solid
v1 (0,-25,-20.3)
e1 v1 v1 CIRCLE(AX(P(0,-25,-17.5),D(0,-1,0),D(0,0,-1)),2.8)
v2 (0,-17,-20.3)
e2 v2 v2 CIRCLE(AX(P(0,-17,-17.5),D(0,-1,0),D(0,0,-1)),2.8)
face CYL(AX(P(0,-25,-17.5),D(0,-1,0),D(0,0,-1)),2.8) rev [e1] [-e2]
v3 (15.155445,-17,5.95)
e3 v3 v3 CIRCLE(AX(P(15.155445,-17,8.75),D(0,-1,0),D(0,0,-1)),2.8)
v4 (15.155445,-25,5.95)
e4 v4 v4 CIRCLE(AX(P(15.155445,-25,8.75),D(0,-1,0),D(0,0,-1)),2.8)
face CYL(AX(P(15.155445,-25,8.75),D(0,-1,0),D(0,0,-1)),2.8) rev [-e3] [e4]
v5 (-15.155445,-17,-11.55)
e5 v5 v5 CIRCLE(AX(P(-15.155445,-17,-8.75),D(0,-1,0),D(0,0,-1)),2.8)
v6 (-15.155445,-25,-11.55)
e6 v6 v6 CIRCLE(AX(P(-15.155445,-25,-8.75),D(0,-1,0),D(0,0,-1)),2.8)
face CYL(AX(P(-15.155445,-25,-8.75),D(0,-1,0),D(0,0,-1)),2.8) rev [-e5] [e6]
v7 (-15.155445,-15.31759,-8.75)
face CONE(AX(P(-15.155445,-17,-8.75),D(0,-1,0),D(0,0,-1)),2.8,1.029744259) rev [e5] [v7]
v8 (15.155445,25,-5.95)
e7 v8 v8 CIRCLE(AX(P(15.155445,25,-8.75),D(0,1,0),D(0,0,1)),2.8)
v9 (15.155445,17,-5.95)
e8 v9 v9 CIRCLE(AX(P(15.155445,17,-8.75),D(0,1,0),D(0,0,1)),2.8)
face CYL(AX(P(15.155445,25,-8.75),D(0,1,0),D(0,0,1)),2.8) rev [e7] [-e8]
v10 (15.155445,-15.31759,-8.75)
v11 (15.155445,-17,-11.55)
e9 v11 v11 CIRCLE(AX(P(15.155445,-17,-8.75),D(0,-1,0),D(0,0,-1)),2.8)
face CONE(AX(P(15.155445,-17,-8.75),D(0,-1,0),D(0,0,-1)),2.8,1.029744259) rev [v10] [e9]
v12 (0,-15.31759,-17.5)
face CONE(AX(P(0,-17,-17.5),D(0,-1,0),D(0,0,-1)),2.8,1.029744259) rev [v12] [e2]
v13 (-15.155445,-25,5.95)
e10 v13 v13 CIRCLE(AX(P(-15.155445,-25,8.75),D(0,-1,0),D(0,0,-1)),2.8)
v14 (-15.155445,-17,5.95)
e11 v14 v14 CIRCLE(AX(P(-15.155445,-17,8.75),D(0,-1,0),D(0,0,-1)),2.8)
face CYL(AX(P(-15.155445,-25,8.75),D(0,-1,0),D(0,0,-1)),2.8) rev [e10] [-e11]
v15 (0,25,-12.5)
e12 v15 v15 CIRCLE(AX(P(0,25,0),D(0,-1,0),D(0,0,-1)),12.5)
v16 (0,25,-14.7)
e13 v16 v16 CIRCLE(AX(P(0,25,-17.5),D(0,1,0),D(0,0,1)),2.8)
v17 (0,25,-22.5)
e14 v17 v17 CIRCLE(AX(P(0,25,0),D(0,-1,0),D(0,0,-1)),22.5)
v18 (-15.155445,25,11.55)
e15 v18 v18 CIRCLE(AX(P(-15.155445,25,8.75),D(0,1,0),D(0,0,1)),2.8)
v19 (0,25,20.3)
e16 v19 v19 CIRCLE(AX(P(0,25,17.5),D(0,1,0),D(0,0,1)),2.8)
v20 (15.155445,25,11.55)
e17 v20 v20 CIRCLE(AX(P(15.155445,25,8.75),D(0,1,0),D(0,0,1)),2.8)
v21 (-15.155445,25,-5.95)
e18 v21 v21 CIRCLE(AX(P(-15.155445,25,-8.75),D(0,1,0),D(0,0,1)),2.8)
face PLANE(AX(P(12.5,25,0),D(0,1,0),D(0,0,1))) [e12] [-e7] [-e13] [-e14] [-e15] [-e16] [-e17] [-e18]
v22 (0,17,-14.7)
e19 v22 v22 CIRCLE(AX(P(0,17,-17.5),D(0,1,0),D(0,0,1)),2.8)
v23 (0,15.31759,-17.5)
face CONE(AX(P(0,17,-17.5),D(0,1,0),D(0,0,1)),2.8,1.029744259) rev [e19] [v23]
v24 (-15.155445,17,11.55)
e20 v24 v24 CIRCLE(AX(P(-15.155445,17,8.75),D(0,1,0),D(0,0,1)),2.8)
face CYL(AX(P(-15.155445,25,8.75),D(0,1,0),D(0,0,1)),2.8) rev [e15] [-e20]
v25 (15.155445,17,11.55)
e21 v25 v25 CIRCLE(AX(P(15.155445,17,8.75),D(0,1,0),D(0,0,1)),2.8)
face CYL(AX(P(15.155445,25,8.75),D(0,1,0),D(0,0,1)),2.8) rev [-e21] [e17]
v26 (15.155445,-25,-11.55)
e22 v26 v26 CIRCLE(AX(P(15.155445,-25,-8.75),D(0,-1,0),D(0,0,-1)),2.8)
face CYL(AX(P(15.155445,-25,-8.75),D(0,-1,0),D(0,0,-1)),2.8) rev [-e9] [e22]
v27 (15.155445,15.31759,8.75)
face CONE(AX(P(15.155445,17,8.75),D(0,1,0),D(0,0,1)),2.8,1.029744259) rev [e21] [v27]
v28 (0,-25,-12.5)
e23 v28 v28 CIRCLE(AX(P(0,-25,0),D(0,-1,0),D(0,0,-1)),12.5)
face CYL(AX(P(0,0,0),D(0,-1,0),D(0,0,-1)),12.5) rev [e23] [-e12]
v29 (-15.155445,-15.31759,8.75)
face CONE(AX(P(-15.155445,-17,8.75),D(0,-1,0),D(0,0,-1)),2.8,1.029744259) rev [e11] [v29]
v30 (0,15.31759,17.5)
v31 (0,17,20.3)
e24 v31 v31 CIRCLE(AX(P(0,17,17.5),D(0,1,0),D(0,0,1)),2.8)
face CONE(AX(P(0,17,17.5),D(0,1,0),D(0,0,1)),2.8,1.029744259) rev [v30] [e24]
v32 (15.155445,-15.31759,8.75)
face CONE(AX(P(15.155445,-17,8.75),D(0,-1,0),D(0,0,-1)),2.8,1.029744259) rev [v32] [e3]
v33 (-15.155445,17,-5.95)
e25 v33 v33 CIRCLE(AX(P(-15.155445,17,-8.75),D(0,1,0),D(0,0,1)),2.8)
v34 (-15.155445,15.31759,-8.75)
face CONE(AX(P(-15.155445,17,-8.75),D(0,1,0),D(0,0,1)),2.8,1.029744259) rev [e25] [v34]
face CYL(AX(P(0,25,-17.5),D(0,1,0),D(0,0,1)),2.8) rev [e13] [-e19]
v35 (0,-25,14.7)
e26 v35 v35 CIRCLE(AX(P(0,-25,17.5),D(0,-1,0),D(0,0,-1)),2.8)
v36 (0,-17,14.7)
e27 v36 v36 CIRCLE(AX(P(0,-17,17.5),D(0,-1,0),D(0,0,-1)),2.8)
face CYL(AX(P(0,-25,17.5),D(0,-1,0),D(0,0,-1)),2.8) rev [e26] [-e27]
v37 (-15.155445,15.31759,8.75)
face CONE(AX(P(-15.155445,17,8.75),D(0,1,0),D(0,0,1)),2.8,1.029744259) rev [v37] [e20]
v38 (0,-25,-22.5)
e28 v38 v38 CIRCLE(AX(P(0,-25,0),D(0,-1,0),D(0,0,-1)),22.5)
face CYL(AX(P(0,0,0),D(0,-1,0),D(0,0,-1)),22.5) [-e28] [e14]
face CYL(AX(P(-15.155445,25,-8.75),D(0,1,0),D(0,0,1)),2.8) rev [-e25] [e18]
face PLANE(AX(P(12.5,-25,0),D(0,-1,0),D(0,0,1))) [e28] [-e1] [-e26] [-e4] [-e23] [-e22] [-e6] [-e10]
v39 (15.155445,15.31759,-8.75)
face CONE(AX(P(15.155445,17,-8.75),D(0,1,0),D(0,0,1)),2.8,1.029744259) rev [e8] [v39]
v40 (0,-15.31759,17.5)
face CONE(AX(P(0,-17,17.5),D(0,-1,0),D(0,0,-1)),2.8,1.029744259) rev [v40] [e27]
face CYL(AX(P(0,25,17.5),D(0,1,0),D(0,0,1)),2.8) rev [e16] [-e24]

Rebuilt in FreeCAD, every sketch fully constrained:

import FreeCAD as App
import Part
import Sketcher
Q = App.Units.Quantity


def add_polygon(sketch, points):
    """Adds a closed chain of lines whose ends are joined by coincident constraints."""
    first, n = sketch.GeometryCount, len(points)
    for a, b in zip(points, points[1:] + points[:1]):
        sketch.addGeometry(Part.LineSegment(App.Vector(*a, 0), App.Vector(*b, 0)), False)
    for i in range(n):
        sketch.addConstraint(Sketcher.Constraint("Coincident", first + i, 2, first + (i + 1) % n, 1))

doc = App.newDocument("Part")
body = doc.addObject("PartDesign::Body", "Body")

# Sketch on XY plane
sketch1 = doc.addObject("Sketcher::SketchObject", "Sketch")
body.addObject(sketch1)
sketch1.AttachmentSupport = (doc.XY_Plane, [""])
sketch1.MapMode = "FlatFace"
add_polygon(sketch1, [(12, 25), (12, 0), (22, 0), (22, 25)])  # lines 0-3
sketch1.addConstraint(Sketcher.Constraint("Vertical", 0))
sketch1.addConstraint(Sketcher.Constraint("Horizontal", 1))
sketch1.addConstraint(Sketcher.Constraint("Vertical", 2))
sketch1.addConstraint(Sketcher.Constraint("Horizontal", 3))
sketch1.addConstraint(Sketcher.Constraint("PointOnObject", 0, 2, -1))
sketch1.addConstraint(Sketcher.Constraint("DistanceX", 1, 1, 1, 2, Q("10 mm")))
sketch1.addConstraint(Sketcher.Constraint("DistanceY", 0, 2, 0, 1, Q("25 mm")))
sketch1.addConstraint(Sketcher.Constraint("DistanceX", -1, 1, 0, 2, Q("12.5 mm")))
revolution = doc.addObject("PartDesign::Revolution", "Revolution")
body.addObject(revolution)
revolution.Profile = sketch1
revolution.ReferenceAxis = (sketch1, ["V_Axis"])
revolution.Angle = 360

# Sketch on YZ plane
sketch2 = doc.addObject("Sketcher::SketchObject", "Sketch001")
body.addObject(sketch2)
sketch2.AttachmentSupport = (doc.YZ_Plane, [""])
sketch2.MapMode = "FlatFace"
sketch2.AttachmentOffset = App.Placement(App.Vector(0, 0, 15.155445), App.Rotation())
add_polygon(sketch2, [(15.3, 8.8), (25, 8.8), (25, 11.6), (17, 11.6)])  # lines 0-3
sketch2.addGeometry(Part.LineSegment(App.Vector(25, 8.8, 0), App.Vector(15.3, 8.8, 0)), True)  # axis
sketch2.addConstraint(Sketcher.Constraint("Horizontal", 0))
sketch2.addConstraint(Sketcher.Constraint("Vertical", 1))
sketch2.addConstraint(Sketcher.Constraint("Horizontal", 2))
sketch2.addConstraint(Sketcher.Constraint("Horizontal", 4))
sketch2.addConstraint(Sketcher.Constraint("Coincident", 4, 1, 0, 2))
sketch2.addConstraint(Sketcher.Constraint("Equal", 0, 4))
sketch2.addConstraint(Sketcher.Constraint("DistanceX", 2, 2, 2, 1, Q("8 mm")))
sketch2.addConstraint(Sketcher.Constraint("Angle", 3, Q("-121 deg")))
sketch2.addConstraint(Sketcher.Constraint("DistanceY", 1, 1, 1, 2, Q("2.8 mm")))
sketch2.addConstraint(Sketcher.Constraint("DistanceX", -1, 1, 0, 2, Q("25 mm")))
sketch2.addConstraint(Sketcher.Constraint("DistanceY", -1, 1, 0, 2, Q("8.75 mm")))
groove = doc.addObject("PartDesign::Groove", "Groove")
body.addObject(groove)
groove.Profile = sketch2
groove.ReferenceAxis = (sketch2, ["Axis0"])
groove.Angle = 360
doc.recompute()

datumline = doc.addObject("PartDesign::Line", "DatumLine")
body.addObject(datumline)
datumline.Placement = App.Placement(App.Vector(0, 0, 0), App.Rotation(App.Vector(0, 0, 1), App.Vector(-0.866025404, 0, 0.5)))
linearpattern = doc.addObject("PartDesign::LinearPattern", "LinearPattern")
body.addObject(linearpattern)
linearpattern.Originals = [groove]
linearpattern.Direction = (datumline, [""])
linearpattern.Mode = "offset"
linearpattern.Offset = 17.5
linearpattern.Occurrences = 2
body.Tip = linearpattern
doc.recompute()

linearpattern2 = doc.addObject("PartDesign::LinearPattern", "LinearPattern001")
body.addObject(linearpattern2)
linearpattern2.Originals = [groove]
linearpattern2.Direction = (doc.X_Axis, [""])
linearpattern2.Mode = "offset"
linearpattern2.Offset = 30.310889
linearpattern2.Occurrences = 2
linearpattern2.Reversed = True
body.Tip = linearpattern2
doc.recompute()

datumline2 = doc.addObject("PartDesign::Line", "DatumLine001")
body.addObject(datumline2)
datumline2.Placement = App.Placement(App.Vector(0, 0, 0), App.Rotation(App.Vector(0, 0, 1), App.Vector(-0.866025404, 0, -0.5)))
linearpattern3 = doc.addObject("PartDesign::LinearPattern", "LinearPattern002")
body.addObject(linearpattern3)
linearpattern3.Originals = [groove]
linearpattern3.Direction = (datumline2, [""])
linearpattern3.Mode = "offset"
linearpattern3.Offset = 35
linearpattern3.Occurrences = 2
body.Tip = linearpattern3
doc.recompute()

datumline3 = doc.addObject("PartDesign::Line", "DatumLine002")
body.addObject(datumline3)
datumline3.Placement = App.Placement(App.Vector(0, 0, 0), App.Rotation(App.Vector(0, 0, 1), App.Vector(-0.5, 0, -0.866025404)))
linearpattern4 = doc.addObject("PartDesign::LinearPattern", "LinearPattern003")
body.addObject(linearpattern4)
linearpattern4.Originals = [groove]
linearpattern4.Direction = (datumline3, [""])
linearpattern4.Mode = "offset"
linearpattern4.Offset = 30.310889
linearpattern4.Occurrences = 2
body.Tip = linearpattern4
doc.recompute()

linearpattern5 = doc.addObject("PartDesign::LinearPattern", "LinearPattern004")
body.addObject(linearpattern5)
linearpattern5.Originals = [groove]
linearpattern5.Direction = (doc.Z_Axis, [""])
linearpattern5.Mode = "offset"
linearpattern5.Offset = 17.5
linearpattern5.Occurrences = 2
linearpattern5.Reversed = True
body.Tip = linearpattern5
doc.recompute()

mirrored = doc.addObject("PartDesign::Mirrored", "Mirrored")
body.addObject(mirrored)
mirrored.Originals = [revolution, groove]
mirrored.MirrorPlane = (doc.XZ_Plane, [""])
body.Tip = mirrored

# Sketch on YZ plane
sketch3 = doc.addObject("Sketcher::SketchObject", "Sketch002")
body.addObject(sketch3)
sketch3.AttachmentSupport = (doc.YZ_Plane, [""])
sketch3.MapMode = "FlatFace"
add_polygon(sketch3, [(-25, 17.5), (-15.3, 17.5), (-17, 20.3), (-25, 20.3)])  # lines 0-3
sketch3.addGeometry(Part.LineSegment(App.Vector(-15.3, 17.5, 0), App.Vector(-25, 17.5, 0)), True)  # axis
sketch3.addConstraint(Sketcher.Constraint("Horizontal", 0))
sketch3.addConstraint(Sketcher.Constraint("Horizontal", 2))
sketch3.addConstraint(Sketcher.Constraint("Vertical", 3))
sketch3.addConstraint(Sketcher.Constraint("Horizontal", 4))
sketch3.addConstraint(Sketcher.Constraint("Coincident", 4, 1, 0, 2))
sketch3.addConstraint(Sketcher.Constraint("Vertical", 2, 2, 4, 2))
sketch3.addConstraint(Sketcher.Constraint("DistanceX", 2, 2, 2, 1, Q("8 mm")))
sketch3.addConstraint(Sketcher.Constraint("Angle", 1, Q("121 deg")))
sketch3.addConstraint(Sketcher.Constraint("DistanceY", 3, 2, 3, 1, Q("2.8 mm")))
sketch3.addConstraint(Sketcher.Constraint("DistanceX", 1, 2, -1, 1, Q("17 mm")))
sketch3.addConstraint(Sketcher.Constraint("DistanceY", -1, 1, 0, 2, Q("17.5 mm")))
groove2 = doc.addObject("PartDesign::Groove", "Groove001")
body.addObject(groove2)
groove2.Profile = sketch3
groove2.ReferenceAxis = (sketch3, ["Axis0"])
groove2.Angle = 360

# Sketch on YZ plane
sketch4 = doc.addObject("Sketcher::SketchObject", "Sketch003")
body.addObject(sketch4)
sketch4.AttachmentSupport = (doc.YZ_Plane, [""])
sketch4.MapMode = "FlatFace"
sketch4.AttachmentOffset = App.Placement(App.Vector(0, 0, -15.155445), App.Rotation())
add_polygon(sketch4, [(-25, 8.8), (-15.3, 8.8), (-17, 11.6), (-25, 11.6)])  # lines 0-3
sketch4.addGeometry(Part.LineSegment(App.Vector(-15.3, 8.8, 0), App.Vector(-25, 8.8, 0)), True)  # axis
sketch4.addConstraint(Sketcher.Constraint("Horizontal", 0))
sketch4.addConstraint(Sketcher.Constraint("Horizontal", 2))
sketch4.addConstraint(Sketcher.Constraint("Vertical", 3))
sketch4.addConstraint(Sketcher.Constraint("Horizontal", 4))
sketch4.addConstraint(Sketcher.Constraint("Coincident", 4, 1, 0, 2))
sketch4.addConstraint(Sketcher.Constraint("Vertical", 2, 2, 4, 2))
sketch4.addConstraint(Sketcher.Constraint("DistanceX", 2, 2, 2, 1, Q("8 mm")))
sketch4.addConstraint(Sketcher.Constraint("Angle", 1, Q("121 deg")))
sketch4.addConstraint(Sketcher.Constraint("DistanceY", 3, 2, 3, 1, Q("2.8 mm")))
sketch4.addConstraint(Sketcher.Constraint("DistanceX", 1, 2, -1, 1, Q("17 mm")))
sketch4.addConstraint(Sketcher.Constraint("DistanceY", -1, 1, 0, 2, Q("8.75 mm")))
groove3 = doc.addObject("PartDesign::Groove", "Groove002")
body.addObject(groove3)
groove3.Profile = sketch4
groove3.ReferenceAxis = (sketch4, ["Axis0"])
groove3.Angle = 360

# Sketch on YZ plane
sketch5 = doc.addObject("Sketcher::SketchObject", "Sketch004")
body.addObject(sketch5)
sketch5.AttachmentSupport = (doc.YZ_Plane, [""])
sketch5.MapMode = "FlatFace"
sketch5.AttachmentOffset = App.Placement(App.Vector(0, 0, -15.155445), App.Rotation())
add_polygon(sketch5, [(-25, -8.8), (-15.3, -8.8), (-17, -6), (-25, -6)])  # lines 0-3
sketch5.addGeometry(Part.LineSegment(App.Vector(-15.3, -8.8, 0), App.Vector(-25, -8.8, 0)), True)  # axis
sketch5.addConstraint(Sketcher.Constraint("Horizontal", 0))
sketch5.addConstraint(Sketcher.Constraint("Horizontal", 2))
sketch5.addConstraint(Sketcher.Constraint("Vertical", 3))
sketch5.addConstraint(Sketcher.Constraint("Horizontal", 4))
sketch5.addConstraint(Sketcher.Constraint("Coincident", 4, 1, 0, 2))
sketch5.addConstraint(Sketcher.Constraint("Vertical", 2, 2, 4, 2))
sketch5.addConstraint(Sketcher.Constraint("DistanceX", 2, 2, 2, 1, Q("8 mm")))
sketch5.addConstraint(Sketcher.Constraint("Angle", 1, Q("121 deg")))
sketch5.addConstraint(Sketcher.Constraint("DistanceY", 3, 2, 3, 1, Q("2.8 mm")))
sketch5.addConstraint(Sketcher.Constraint("DistanceX", 1, 2, -1, 1, Q("17 mm")))
sketch5.addConstraint(Sketcher.Constraint("DistanceY", 0, 2, -1, 1, Q("8.75 mm")))
groove4 = doc.addObject("PartDesign::Groove", "Groove003")
body.addObject(groove4)
groove4.Profile = sketch5
groove4.ReferenceAxis = (sketch5, ["Axis0"])
groove4.Angle = 360

# Sketch on YZ plane
sketch6 = doc.addObject("Sketcher::SketchObject", "Sketch005")
body.addObject(sketch6)
sketch6.AttachmentSupport = (doc.YZ_Plane, [""])
sketch6.MapMode = "FlatFace"
add_polygon(sketch6, [(-25, -17.5), (-15.3, -17.5), (-17, -14.7), (-25, -14.7)])  # lines 0-3
sketch6.addGeometry(Part.LineSegment(App.Vector(-15.3, -17.5, 0), App.Vector(-25, -17.5, 0)), True)  # axis
sketch6.addConstraint(Sketcher.Constraint("Horizontal", 0))
sketch6.addConstraint(Sketcher.Constraint("Horizontal", 2))
sketch6.addConstraint(Sketcher.Constraint("Vertical", 3))
sketch6.addConstraint(Sketcher.Constraint("Horizontal", 4))
sketch6.addConstraint(Sketcher.Constraint("Coincident", 4, 1, 0, 2))
sketch6.addConstraint(Sketcher.Constraint("Vertical", 2, 2, 4, 2))
sketch6.addConstraint(Sketcher.Constraint("DistanceX", 2, 2, 2, 1, Q("8 mm")))
sketch6.addConstraint(Sketcher.Constraint("Angle", 1, Q("121 deg")))
sketch6.addConstraint(Sketcher.Constraint("DistanceY", 3, 2, 3, 1, Q("2.8 mm")))
sketch6.addConstraint(Sketcher.Constraint("DistanceX", 1, 2, -1, 1, Q("17 mm")))
sketch6.addConstraint(Sketcher.Constraint("DistanceY", 0, 2, -1, 1, Q("17.5 mm")))
groove5 = doc.addObject("PartDesign::Groove", "Groove004")
body.addObject(groove5)
groove5.Profile = sketch6
groove5.ReferenceAxis = (sketch6, ["Axis0"])
groove5.Angle = 360

# Sketch on YZ plane
sketch7 = doc.addObject("Sketcher::SketchObject", "Sketch006")
body.addObject(sketch7)
sketch7.AttachmentSupport = (doc.YZ_Plane, [""])
sketch7.MapMode = "FlatFace"
sketch7.AttachmentOffset = App.Placement(App.Vector(0, 0, 15.155445), App.Rotation())
add_polygon(sketch7, [(-25, -8.8), (-15.3, -8.8), (-17, -6), (-25, -6)])  # lines 0-3
sketch7.addGeometry(Part.LineSegment(App.Vector(-15.3, -8.8, 0), App.Vector(-25, -8.8, 0)), True)  # axis
sketch7.addConstraint(Sketcher.Constraint("Horizontal", 0))
sketch7.addConstraint(Sketcher.Constraint("Horizontal", 2))
sketch7.addConstraint(Sketcher.Constraint("Vertical", 3))
sketch7.addConstraint(Sketcher.Constraint("Horizontal", 4))
sketch7.addConstraint(Sketcher.Constraint("Coincident", 4, 1, 0, 2))
sketch7.addConstraint(Sketcher.Constraint("Vertical", 2, 2, 4, 2))
sketch7.addConstraint(Sketcher.Constraint("DistanceX", 2, 2, 2, 1, Q("8 mm")))
sketch7.addConstraint(Sketcher.Constraint("Angle", 1, Q("121 deg")))
sketch7.addConstraint(Sketcher.Constraint("DistanceY", 3, 2, 3, 1, Q("2.8 mm")))
sketch7.addConstraint(Sketcher.Constraint("DistanceX", 1, 2, -1, 1, Q("17 mm")))
sketch7.addConstraint(Sketcher.Constraint("DistanceY", 0, 2, -1, 1, Q("8.75 mm")))
groove6 = doc.addObject("PartDesign::Groove", "Groove005")
body.addObject(groove6)
groove6.Profile = sketch7
groove6.ReferenceAxis = (sketch7, ["Axis0"])
groove6.Angle = 360

doc.recompute()
